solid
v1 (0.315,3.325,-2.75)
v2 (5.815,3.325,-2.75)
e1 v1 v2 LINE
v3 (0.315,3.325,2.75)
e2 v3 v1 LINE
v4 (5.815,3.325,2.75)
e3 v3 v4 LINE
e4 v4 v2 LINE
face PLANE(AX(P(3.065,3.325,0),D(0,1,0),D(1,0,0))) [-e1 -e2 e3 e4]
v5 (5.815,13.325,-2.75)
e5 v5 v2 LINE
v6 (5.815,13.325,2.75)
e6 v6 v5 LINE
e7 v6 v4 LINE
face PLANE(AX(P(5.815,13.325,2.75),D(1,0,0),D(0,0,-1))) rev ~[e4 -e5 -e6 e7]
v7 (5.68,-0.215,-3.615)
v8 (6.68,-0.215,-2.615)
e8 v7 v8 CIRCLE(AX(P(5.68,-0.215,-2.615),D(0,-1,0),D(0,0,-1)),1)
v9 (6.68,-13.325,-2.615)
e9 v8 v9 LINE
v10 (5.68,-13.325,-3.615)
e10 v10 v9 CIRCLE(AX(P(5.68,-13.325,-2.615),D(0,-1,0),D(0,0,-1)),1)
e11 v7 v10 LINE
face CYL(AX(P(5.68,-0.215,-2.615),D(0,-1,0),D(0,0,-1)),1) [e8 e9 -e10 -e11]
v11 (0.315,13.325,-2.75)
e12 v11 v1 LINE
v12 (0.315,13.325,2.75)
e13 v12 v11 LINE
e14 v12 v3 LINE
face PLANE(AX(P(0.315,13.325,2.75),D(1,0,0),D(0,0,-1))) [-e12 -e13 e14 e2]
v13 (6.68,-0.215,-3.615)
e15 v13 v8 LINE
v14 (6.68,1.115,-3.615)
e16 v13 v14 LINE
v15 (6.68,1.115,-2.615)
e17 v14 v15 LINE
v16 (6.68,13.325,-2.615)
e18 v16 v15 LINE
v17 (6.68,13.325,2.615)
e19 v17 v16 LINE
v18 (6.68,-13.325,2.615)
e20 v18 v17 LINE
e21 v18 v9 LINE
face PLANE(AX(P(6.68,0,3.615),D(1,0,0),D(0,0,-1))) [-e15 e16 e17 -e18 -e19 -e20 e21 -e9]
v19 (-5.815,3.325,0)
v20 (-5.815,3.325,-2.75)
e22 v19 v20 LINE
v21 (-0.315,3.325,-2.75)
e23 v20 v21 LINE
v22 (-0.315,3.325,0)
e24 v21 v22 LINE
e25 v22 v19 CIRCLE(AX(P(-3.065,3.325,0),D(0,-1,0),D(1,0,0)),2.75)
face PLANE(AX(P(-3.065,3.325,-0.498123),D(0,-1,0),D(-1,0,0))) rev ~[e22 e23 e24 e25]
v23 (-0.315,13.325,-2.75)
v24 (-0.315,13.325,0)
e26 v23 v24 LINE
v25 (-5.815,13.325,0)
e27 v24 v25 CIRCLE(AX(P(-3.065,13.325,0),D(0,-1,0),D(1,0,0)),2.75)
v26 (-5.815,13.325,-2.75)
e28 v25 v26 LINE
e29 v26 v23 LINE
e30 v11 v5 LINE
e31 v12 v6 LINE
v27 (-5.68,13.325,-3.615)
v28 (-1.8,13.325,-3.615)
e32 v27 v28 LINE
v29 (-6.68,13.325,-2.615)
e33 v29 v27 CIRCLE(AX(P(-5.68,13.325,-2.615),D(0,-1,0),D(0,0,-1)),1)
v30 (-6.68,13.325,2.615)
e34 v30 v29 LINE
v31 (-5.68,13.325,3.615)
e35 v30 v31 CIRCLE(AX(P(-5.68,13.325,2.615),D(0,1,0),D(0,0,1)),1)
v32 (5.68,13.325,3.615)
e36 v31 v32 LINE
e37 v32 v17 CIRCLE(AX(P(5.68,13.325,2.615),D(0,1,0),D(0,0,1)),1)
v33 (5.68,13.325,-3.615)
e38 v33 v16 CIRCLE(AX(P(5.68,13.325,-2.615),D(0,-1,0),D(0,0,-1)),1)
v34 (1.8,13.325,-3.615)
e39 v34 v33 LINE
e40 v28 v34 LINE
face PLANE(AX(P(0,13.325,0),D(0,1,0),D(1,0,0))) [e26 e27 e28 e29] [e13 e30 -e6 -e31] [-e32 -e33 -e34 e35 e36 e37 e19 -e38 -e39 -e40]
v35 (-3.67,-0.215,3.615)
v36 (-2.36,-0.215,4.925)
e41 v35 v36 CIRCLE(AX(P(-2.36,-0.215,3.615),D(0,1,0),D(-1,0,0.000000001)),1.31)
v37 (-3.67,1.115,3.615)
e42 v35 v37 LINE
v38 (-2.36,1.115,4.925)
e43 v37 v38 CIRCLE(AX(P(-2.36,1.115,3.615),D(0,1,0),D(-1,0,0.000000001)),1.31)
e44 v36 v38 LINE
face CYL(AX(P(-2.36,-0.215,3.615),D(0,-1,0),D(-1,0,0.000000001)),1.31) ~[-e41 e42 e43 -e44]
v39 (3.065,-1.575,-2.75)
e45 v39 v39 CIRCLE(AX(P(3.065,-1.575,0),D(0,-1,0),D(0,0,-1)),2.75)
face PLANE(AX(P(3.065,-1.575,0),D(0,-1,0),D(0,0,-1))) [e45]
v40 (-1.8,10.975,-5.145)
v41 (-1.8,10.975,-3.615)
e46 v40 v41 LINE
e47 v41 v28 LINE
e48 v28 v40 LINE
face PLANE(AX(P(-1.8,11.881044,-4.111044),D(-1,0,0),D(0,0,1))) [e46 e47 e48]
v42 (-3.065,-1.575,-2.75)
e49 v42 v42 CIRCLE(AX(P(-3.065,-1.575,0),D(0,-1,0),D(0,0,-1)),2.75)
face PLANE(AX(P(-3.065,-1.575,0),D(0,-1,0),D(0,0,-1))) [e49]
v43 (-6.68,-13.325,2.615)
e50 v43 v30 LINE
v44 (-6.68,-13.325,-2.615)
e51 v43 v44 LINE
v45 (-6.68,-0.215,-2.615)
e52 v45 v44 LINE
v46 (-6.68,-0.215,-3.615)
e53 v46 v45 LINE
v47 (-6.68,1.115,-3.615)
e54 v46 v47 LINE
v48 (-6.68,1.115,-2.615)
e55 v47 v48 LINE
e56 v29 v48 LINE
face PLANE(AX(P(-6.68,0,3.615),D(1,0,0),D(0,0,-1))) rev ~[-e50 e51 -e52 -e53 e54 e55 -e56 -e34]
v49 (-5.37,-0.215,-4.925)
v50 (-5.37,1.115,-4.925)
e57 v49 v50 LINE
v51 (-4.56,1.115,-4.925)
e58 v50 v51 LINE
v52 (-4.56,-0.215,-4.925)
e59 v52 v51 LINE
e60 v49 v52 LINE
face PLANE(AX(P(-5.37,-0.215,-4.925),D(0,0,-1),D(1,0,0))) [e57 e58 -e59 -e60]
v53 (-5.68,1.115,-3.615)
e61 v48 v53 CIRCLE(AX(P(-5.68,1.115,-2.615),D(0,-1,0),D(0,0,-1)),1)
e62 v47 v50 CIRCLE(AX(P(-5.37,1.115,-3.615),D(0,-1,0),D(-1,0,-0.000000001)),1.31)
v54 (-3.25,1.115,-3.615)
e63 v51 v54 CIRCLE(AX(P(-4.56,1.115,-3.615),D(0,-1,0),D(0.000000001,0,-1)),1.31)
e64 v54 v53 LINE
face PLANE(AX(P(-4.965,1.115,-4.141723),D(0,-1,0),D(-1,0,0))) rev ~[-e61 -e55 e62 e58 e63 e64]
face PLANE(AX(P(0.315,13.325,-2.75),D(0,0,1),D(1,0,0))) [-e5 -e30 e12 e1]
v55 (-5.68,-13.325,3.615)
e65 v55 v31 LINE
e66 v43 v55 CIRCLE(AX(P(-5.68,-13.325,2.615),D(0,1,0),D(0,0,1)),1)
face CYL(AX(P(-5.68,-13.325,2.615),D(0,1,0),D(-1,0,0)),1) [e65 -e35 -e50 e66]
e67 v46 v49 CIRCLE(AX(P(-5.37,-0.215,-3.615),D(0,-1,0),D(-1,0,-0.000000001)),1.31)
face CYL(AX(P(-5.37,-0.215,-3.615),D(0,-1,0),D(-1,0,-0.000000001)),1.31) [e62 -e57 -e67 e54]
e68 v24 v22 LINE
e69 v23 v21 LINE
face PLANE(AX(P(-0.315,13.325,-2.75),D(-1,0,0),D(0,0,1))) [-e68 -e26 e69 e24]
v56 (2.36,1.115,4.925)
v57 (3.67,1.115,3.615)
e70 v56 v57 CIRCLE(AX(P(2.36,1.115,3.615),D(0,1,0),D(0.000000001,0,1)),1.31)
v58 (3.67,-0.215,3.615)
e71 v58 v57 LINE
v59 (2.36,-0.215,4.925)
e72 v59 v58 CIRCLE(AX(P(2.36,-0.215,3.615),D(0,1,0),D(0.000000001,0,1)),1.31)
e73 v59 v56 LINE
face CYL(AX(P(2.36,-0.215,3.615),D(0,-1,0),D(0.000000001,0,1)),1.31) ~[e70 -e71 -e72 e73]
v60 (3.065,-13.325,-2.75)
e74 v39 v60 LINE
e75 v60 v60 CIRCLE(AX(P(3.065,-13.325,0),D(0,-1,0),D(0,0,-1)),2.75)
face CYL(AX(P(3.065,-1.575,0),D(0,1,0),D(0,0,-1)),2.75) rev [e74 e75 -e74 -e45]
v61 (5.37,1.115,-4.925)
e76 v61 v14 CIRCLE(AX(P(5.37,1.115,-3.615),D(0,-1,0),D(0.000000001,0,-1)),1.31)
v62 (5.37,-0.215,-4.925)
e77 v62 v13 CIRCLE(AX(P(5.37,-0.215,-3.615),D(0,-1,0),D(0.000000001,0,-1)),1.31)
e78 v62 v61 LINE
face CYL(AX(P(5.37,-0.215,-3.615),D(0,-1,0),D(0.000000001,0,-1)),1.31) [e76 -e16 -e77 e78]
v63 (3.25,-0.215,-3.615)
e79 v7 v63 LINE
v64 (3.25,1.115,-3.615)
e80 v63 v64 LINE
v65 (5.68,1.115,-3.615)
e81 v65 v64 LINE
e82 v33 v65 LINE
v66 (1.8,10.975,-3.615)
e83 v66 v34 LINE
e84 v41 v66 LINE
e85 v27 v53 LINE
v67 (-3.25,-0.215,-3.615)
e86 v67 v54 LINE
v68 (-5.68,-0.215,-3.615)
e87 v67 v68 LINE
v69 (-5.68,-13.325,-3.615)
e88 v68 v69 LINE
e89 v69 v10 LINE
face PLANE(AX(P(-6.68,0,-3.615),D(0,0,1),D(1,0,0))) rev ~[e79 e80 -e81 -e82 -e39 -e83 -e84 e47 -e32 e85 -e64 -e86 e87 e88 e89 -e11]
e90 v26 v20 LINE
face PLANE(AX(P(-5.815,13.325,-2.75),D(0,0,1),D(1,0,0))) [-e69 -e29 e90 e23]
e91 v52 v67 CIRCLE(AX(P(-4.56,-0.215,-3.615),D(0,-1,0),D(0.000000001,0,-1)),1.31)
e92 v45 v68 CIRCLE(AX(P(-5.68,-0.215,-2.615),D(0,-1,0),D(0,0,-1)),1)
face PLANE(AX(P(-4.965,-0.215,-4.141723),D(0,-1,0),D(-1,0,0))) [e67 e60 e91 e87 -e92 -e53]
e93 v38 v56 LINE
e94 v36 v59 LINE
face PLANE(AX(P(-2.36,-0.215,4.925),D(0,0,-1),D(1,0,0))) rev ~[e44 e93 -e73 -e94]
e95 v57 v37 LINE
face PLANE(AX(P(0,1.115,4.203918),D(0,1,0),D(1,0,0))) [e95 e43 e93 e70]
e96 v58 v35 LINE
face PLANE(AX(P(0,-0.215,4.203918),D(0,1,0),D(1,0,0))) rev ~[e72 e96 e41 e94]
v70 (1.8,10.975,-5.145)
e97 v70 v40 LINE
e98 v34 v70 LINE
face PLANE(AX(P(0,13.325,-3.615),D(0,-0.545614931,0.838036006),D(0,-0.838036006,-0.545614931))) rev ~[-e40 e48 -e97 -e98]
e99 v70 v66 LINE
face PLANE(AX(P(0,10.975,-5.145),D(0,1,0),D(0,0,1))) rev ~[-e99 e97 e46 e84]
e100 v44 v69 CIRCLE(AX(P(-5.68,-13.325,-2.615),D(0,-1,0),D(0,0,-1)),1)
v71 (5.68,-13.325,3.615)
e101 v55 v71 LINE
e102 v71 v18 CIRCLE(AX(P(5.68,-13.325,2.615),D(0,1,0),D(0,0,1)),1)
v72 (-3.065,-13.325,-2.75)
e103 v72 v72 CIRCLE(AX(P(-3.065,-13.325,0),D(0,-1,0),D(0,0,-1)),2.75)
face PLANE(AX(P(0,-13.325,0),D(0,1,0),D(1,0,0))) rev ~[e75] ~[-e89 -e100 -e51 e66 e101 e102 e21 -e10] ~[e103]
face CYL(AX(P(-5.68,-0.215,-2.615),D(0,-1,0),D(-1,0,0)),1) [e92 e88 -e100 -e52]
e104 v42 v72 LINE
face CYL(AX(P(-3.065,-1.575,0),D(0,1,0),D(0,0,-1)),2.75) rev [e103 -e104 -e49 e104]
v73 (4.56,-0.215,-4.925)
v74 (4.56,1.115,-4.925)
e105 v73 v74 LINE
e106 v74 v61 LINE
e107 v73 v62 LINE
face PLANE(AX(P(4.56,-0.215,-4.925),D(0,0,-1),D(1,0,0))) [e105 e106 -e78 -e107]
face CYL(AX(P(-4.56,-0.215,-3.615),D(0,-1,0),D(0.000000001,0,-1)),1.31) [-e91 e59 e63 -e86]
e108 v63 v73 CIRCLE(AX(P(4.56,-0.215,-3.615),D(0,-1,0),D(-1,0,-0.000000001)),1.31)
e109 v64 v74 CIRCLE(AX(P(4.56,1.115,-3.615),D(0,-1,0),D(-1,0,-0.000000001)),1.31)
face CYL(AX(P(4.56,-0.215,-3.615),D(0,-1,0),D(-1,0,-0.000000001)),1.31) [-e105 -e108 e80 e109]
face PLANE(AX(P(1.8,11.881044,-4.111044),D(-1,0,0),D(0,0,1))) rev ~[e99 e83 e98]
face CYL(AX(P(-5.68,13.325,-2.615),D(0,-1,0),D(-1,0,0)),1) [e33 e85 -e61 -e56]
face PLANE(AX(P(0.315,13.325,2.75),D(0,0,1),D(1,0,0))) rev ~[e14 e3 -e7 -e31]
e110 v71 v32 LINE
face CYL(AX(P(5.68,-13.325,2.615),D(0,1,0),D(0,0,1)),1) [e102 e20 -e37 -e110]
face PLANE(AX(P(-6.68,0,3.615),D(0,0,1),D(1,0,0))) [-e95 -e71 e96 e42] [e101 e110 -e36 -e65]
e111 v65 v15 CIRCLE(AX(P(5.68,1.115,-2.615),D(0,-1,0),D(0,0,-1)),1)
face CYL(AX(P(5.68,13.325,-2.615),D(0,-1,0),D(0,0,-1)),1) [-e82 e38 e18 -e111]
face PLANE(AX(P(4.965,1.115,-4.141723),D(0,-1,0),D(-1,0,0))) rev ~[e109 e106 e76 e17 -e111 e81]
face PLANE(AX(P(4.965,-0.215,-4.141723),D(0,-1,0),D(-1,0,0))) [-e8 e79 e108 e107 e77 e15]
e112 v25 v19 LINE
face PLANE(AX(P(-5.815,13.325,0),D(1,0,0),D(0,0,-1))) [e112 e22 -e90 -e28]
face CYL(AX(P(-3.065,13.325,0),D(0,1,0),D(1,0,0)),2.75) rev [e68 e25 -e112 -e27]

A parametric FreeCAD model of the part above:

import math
import FreeCAD as App
import Part
import Sketcher

V = App.Vector


def edges_at(feature, points):
    """Names of the edges that pass closest to the given points."""
    edges = feature.Shape.Edges
    near = lambda p: min(range(len(edges)), key=lambda i: edges[i].distToShape(Part.Vertex(*p))[0])
    return sorted({f"Edge{near(p) + 1}" for p in points})


def add_polygon(sketch, points):
    """Adds a closed chain of lines whose ends are joined by coincident constraints."""
    first, n = sketch.GeometryCount, len(points)
    for a, b in zip(points, points[1:] + points[:1]):
        sketch.addGeometry(Part.LineSegment(App.Vector(*a, 0), App.Vector(*b, 0)), False)
    for i in range(n):
        sketch.addConstraint(Sketcher.Constraint("Coincident", first + i, 2, first + (i + 1) % n, 1))

doc = App.newDocument("Part")
body = doc.addObject("PartDesign::Body", "Body")

sketch1 = body.newObject("Sketcher::SketchObject", "Sketch")
sketch1.AttachmentSupport = (doc.getObject("XZ_Plane"), [""])
sketch1.MapMode = "FlatFace"
add_polygon(sketch1, [(-7, -4), (-7, 4), (7, 4), (7, -4)])
sketch1.addConstraint([
    Sketcher.Constraint("Vertical", 0),
    Sketcher.Constraint("Horizontal", 1),
    Sketcher.Constraint("Vertical", 2),
    Sketcher.Constraint("Horizontal", 3),
    Sketcher.Constraint("Symmetric", 0, 2, 2, 2, -1, 1),
    Sketcher.Constraint("DistanceX", 1, 1, 1, 2, 13.36),
    Sketcher.Constraint("DistanceY", 0, 1, 0, 2, 7.23),
])
pad1 = body.newObject("PartDesign::Pad", "Pad")
pad1.Profile = sketch1
pad1.Length = 26.65
pad1.Midplane = True

sketch2 = body.newObject("Sketcher::SketchObject", "Sketch001")
sketch2.AttachmentSupport = (doc.getObject("XZ_Plane"), [""])
sketch2.MapMode = "FlatFace"
sketch2.AttachmentOffset = App.Placement(V(0, 0, -13.325), App.Rotation())
sketch2.addGeometry(Part.LineSegment(V(-0.3, -2.8, 0), V(-5.8, -2.8, 0)), False)
sketch2.addGeometry(Part.LineSegment(V(-5.8, -2.8, 0), V(-5.8, 0, 0)), False)
sketch2.addGeometry(Part.ArcOfCircle(Part.Circle(V(-3.1, 0, 0), V(0, 0, 1), 2.8), math.radians(0), math.radians(180)), False)
sketch2.addGeometry(Part.LineSegment(V(-0.3, 0, 0), V(-0.3, -2.8, 0)), False)
add_polygon(sketch2, [(0.3, -2.8), (0.3, 2.8), (5.8, 2.8), (5.8, -2.8)])
sketch2.addConstraint([
    Sketcher.Constraint("Coincident", 0, 2, 1, 1),
    Sketcher.Constraint("Tangent", 1, 2, 2, 2),
    Sketcher.Constraint("Tangent", 2, 1, 3, 1),
    Sketcher.Constraint("Coincident", 3, 2, 0, 1),
    Sketcher.Constraint("Horizontal", 0),
    Sketcher.Constraint("Vertical", 1),
    Sketcher.Constraint("Vertical", 3),
    Sketcher.Constraint("Vertical", 4),
    Sketcher.Constraint("Horizontal", 5),
    Sketcher.Constraint("Vertical", 6),
    Sketcher.Constraint("Horizontal", 7),
    Sketcher.Constraint("Symmetric", 3, 2, 4, 2, -1, 1),
    Sketcher.Constraint("Symmetric", 0, 2, 6, 2, -2),
    Sketcher.Constraint("PointOnObject", 2, 3, -1),
    Sketcher.Constraint("Equal", 7, 4),
    Sketcher.Constraint("Radius", 2, 2.75),
    Sketcher.Constraint("DistanceX", 2, 1, 4, 2, 0.63),
])
pocket1 = body.newObject("PartDesign::Pocket", "Pocket")
pocket1.Profile = sketch2
pocket1.Length = 10
pocket1.Reversed = True

sketch3 = body.newObject("Sketcher::SketchObject", "Sketch002")
sketch3.AttachmentSupport = (doc.getObject("XZ_Plane"), [""])
sketch3.MapMode = "FlatFace"
sketch3.AttachmentOffset = App.Placement(V(0, 0, 1.575), App.Rotation())
sketch3.addGeometry([
    Part.Circle(V(-3.1, 0, 0), V(0, 0, 1), 2.8),
    Part.Circle(V(3.1, 0, 0), V(0, 0, 1), 2.8),
], False)
sketch3.addConstraint([
    Sketcher.Constraint("Equal", 0, 1),
    Sketcher.Constraint("Symmetric", 0, 3, 1, 3, -1, 1),
    Sketcher.Constraint("PointOnObject", 0, 3, -1),
    Sketcher.Constraint("Diameter", 0, 5.5),
    Sketcher.Constraint("DistanceX", 0, 3, 1, 3, 6.13),
])
pocket2 = body.newObject("PartDesign::Pocket", "Pocket001")
pocket2.Profile = sketch3
pocket2.Length = 11.75
pocket2.Reversed = True

sketch4 = body.newObject("Sketcher::SketchObject", "Sketch003")
sketch4.AttachmentSupport = (doc.getObject("YZ_Plane"), [""])
sketch4.MapMode = "FlatFace"
add_polygon(sketch4, [(11, -5.1), (13.3, -3.6), (11, -3.6)])
sketch4.addConstraint([
    Sketcher.Constraint("Horizontal", 1),
    Sketcher.Constraint("Vertical", 2),
    Sketcher.Constraint("DistanceX", 1, 2, 1, 1, 2.35),
    Sketcher.Constraint("DistanceY", 2, 2, 2, 1, 1.53),
    Sketcher.Constraint("DistanceX", -1, 1, 0, 2, 13.325),
    Sketcher.Constraint("DistanceY", 0, 2, -1, 1, 3.615),
])
pad2 = body.newObject("PartDesign::Pad", "Pad001")
pad2.Profile = sketch4
pad2.Length = 3.6
pad2.Midplane = True

sketch5 = body.newObject("Sketcher::SketchObject", "Sketch004")
sketch5.AttachmentSupport = (doc.getObject("XZ_Plane"), [""])
sketch5.MapMode = "FlatFace"
sketch5.AttachmentOffset = App.Placement(V(0, 0, 0.215), App.Rotation())
sketch5.addGeometry([
    Part.LineSegment(V(-4.6, -4.9, 0), V(-5.4, -4.9, 0)),
    Part.ArcOfCircle(Part.Circle(V(-5.4, -3.6, 0), V(0, 0, 1), 1.3), math.radians(-180), math.radians(-90)),
    Part.LineSegment(V(-6.7, -3.6, 0), V(-3.2, -3.6, 0)),
    Part.ArcOfCircle(Part.Circle(V(-4.6, -3.6, 0), V(0, 0, 1), 1.3), math.radians(-90), math.radians(0)),
    Part.LineSegment(V(5.4, -4.9, 0), V(4.6, -4.9, 0)),
    Part.ArcOfCircle(Part.Circle(V(4.6, -3.6, 0), V(0, 0, 1), 1.3), math.radians(-180), math.radians(-90)),
    Part.LineSegment(V(3.2, -3.6, 0), V(6.7, -3.6, 0)),
    Part.ArcOfCircle(Part.Circle(V(5.4, -3.6, 0), V(0, 0, 1), 1.3), math.radians(-90), math.radians(0)),
    Part.LineSegment(V(-2.4, 4.9, 0), V(2.4, 4.9, 0)),
    Part.ArcOfCircle(Part.Circle(V(2.4, 3.6, 0), V(0, 0, 1), 1.3), math.radians(0), math.radians(90)),
    Part.LineSegment(V(3.7, 3.6, 0), V(-3.7, 3.6, 0)),
    Part.ArcOfCircle(Part.Circle(V(-2.4, 3.6, 0), V(0, 0, 1), 1.3), math.radians(90), math.radians(180)),
], False)
sketch5.addConstraint([
    Sketcher.Constraint("Tangent", 0, 2, 1, 2),
    Sketcher.Constraint("Coincident", 1, 1, 2, 1),
    Sketcher.Constraint("Coincident", 2, 2, 3, 2),
    Sketcher.Constraint("Tangent", 3, 1, 0, 1),
    Sketcher.Constraint("Tangent", 4, 2, 5, 2),
    Sketcher.Constraint("Coincident", 5, 1, 6, 1),
    Sketcher.Constraint("Coincident", 6, 2, 7, 2),
    Sketcher.Constraint("Tangent", 7, 1, 4, 1),
    Sketcher.Constraint("Tangent", 8, 2, 9, 2),
    Sketcher.Constraint("Coincident", 9, 1, 10, 1),
    Sketcher.Constraint("Coincident", 10, 2, 11, 2),
    Sketcher.Constraint("Tangent", 11, 1, 8, 1),
    Sketcher.Constraint("Horizontal", 0),
    Sketcher.Constraint("Horizontal", 2),
    Sketcher.Constraint("Horizontal", 4),
    Sketcher.Constraint("Horizontal", 6),
    Sketcher.Constraint("Horizontal", 8),
    Sketcher.Constraint("Horizontal", 10),
    Sketcher.Constraint("Equal", 1, 3),
    Sketcher.Constraint("Equal", 3, 5),
    Sketcher.Constraint("Equal", 5, 7),
    Sketcher.Constraint("Equal", 7, 9),
    Sketcher.Constraint("Equal", 9, 11),
    Sketcher.Constraint("Symmetric", 3, 3, 5, 3, -2),
    Sketcher.Constraint("Symmetric", 1, 1, 6, 2, -2),
    Sketcher.Constraint("Horizontal", 7, 3, 1, 1),
    Sketcher.Constraint("Horizontal", 11, 3, 9, 1),
    Sketcher.Constraint("Radius", 1, 1.31),
    Sketcher.Constraint("DistanceX", 0, 2, 0, 1, 0.81),
    Sketcher.Constraint("DistanceX", 8, 1, 8, 2, 4.72),
    Sketcher.Constraint("DistanceX", 9, 3, 5, 3, 2.2),
    Sketcher.Constraint("DistanceX", 3, 3, 11, 3, 2.2),
    Sketcher.Constraint("DistanceY", 5, 3, 9, 3, 7.23),
    Sketcher.Constraint("DistanceY", 1, 3, -1, 1, 3.615),
])
pad3 = body.newObject("PartDesign::Pad", "Pad002")
pad3.Profile = sketch5
pad3.Length = 1.33
pad3.Reversed = True
doc.recompute()

fillet = body.newObject("PartDesign::Fillet", "Fillet")
fillet.Base = (pad3, edges_at(pad3, [
    (-6.68, -6.77, -3.615),
    (6.68, -6.77, -3.615),
    (6.68, 0, 3.615),
    (-6.68, 0, 3.615),
    (-6.68, 7.22, -3.615),
    (6.68, 7.22, -3.615),
]))
fillet.Radius = 1

doc.recompute()
